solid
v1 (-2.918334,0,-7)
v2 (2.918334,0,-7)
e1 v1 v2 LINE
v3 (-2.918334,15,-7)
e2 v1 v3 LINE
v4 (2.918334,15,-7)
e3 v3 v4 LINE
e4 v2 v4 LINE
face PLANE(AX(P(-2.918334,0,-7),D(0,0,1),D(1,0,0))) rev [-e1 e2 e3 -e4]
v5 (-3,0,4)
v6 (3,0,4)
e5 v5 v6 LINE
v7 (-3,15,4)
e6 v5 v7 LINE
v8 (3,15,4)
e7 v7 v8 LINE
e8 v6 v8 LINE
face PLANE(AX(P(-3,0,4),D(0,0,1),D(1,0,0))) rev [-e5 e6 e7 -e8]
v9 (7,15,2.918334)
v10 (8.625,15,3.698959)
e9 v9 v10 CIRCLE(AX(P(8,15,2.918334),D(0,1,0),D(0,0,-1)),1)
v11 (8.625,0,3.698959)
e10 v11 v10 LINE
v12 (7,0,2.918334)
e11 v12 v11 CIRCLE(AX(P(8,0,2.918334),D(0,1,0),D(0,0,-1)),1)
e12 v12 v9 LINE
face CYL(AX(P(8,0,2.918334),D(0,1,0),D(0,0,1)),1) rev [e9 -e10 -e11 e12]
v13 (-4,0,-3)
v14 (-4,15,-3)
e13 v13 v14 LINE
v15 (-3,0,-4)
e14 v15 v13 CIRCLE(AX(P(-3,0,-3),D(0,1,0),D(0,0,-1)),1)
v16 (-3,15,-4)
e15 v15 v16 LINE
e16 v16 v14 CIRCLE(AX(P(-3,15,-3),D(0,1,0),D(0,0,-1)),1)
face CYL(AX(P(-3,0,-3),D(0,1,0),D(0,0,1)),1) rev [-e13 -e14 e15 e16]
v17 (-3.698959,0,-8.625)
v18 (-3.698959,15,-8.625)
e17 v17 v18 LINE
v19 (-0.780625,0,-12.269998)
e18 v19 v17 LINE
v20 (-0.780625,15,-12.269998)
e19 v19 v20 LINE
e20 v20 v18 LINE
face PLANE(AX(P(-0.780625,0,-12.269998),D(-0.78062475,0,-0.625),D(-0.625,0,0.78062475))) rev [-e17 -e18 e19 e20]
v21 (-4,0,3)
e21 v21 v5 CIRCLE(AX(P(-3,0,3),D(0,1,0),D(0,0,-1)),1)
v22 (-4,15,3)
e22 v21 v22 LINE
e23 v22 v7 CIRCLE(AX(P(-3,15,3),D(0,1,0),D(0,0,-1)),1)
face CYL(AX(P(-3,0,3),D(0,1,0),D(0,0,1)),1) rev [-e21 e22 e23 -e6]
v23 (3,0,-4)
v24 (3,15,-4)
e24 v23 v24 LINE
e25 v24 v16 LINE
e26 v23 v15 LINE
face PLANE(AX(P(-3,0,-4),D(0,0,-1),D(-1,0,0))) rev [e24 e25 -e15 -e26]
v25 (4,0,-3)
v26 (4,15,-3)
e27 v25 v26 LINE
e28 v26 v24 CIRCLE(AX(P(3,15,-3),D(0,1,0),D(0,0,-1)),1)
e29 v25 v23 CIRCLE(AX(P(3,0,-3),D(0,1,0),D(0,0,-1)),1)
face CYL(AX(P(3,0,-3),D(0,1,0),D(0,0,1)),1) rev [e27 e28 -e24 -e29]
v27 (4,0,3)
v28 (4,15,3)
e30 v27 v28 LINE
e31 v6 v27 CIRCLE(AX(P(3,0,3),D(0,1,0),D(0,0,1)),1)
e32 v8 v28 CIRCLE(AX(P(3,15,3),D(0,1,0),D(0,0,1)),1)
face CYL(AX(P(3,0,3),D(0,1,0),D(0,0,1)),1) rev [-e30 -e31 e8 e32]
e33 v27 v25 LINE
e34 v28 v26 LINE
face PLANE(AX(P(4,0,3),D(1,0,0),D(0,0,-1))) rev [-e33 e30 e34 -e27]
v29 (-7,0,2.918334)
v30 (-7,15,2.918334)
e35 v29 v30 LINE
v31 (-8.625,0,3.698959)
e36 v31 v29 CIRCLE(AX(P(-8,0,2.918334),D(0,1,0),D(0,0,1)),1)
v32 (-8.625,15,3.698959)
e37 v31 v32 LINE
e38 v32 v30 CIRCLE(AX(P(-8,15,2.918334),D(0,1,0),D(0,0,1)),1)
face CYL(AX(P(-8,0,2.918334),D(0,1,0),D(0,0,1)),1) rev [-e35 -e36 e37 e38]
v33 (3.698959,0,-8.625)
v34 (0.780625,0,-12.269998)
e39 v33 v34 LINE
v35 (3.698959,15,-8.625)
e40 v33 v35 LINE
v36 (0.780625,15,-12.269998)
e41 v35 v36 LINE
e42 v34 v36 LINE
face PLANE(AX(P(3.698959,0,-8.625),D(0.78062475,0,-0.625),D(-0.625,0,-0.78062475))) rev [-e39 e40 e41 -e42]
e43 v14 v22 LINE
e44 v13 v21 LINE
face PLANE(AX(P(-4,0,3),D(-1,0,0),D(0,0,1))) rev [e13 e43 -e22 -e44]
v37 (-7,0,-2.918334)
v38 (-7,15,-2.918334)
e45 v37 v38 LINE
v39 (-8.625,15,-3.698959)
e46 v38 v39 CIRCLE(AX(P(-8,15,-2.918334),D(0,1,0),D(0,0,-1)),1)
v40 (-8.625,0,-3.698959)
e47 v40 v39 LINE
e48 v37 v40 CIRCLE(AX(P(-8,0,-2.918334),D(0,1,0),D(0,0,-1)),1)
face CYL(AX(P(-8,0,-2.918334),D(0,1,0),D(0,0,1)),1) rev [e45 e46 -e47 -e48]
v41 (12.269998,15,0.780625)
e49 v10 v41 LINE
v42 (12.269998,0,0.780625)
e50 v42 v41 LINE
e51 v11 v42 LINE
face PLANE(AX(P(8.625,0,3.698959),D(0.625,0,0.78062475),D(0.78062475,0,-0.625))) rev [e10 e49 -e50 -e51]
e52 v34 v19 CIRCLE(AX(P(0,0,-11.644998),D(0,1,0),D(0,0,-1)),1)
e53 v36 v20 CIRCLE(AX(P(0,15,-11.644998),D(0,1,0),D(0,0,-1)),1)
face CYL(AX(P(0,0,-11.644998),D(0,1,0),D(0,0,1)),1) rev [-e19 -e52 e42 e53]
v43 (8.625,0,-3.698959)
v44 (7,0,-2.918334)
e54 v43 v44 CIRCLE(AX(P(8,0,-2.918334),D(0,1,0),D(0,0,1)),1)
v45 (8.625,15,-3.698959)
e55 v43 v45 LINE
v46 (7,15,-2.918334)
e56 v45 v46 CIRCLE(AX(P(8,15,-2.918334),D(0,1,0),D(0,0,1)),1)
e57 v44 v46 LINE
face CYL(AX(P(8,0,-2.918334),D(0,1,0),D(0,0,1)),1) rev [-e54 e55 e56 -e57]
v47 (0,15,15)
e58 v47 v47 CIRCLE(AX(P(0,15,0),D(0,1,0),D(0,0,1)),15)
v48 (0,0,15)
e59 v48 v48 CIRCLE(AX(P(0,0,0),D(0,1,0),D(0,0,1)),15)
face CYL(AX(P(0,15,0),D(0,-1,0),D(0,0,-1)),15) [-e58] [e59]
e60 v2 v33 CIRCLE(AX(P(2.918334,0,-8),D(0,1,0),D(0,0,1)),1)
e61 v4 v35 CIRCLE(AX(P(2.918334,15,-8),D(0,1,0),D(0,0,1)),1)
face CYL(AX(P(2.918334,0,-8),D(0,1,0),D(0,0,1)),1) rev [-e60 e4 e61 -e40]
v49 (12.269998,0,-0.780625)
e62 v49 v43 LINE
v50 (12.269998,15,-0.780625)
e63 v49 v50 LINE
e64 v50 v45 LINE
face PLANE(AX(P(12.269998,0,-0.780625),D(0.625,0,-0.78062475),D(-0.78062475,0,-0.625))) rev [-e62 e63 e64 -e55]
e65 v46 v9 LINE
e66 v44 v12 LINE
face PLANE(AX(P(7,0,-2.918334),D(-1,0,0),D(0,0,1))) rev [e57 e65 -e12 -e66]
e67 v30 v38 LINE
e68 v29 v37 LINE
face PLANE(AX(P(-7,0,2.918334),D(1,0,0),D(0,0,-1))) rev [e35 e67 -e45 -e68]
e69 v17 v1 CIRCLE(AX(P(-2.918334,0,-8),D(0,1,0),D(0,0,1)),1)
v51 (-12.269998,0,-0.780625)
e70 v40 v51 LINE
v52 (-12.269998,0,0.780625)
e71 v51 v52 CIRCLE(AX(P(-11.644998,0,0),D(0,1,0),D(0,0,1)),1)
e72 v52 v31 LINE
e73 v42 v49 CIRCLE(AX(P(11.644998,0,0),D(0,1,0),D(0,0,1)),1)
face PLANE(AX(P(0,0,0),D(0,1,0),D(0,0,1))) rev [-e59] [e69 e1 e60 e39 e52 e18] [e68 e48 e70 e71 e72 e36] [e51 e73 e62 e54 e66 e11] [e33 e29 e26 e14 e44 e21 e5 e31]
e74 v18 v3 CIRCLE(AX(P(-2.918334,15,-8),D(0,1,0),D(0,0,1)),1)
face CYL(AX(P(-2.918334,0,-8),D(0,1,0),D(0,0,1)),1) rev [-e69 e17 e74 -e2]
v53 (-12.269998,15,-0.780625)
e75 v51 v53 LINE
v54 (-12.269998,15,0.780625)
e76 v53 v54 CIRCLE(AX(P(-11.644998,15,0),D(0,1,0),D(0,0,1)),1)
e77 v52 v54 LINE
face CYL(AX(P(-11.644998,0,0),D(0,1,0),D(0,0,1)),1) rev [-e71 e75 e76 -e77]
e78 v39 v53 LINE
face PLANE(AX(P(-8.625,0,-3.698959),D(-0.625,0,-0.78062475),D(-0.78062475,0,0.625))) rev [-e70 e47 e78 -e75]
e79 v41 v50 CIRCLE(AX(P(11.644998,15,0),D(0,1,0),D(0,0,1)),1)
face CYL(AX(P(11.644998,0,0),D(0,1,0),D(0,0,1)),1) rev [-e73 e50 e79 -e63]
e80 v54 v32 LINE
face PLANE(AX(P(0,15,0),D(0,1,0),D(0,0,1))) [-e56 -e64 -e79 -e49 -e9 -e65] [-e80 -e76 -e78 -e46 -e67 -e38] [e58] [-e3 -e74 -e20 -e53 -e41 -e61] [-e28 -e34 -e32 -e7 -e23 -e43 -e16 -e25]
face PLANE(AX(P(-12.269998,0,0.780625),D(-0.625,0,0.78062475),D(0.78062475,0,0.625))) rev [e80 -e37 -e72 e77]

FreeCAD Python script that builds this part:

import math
import FreeCAD as App
import Part
import Sketcher
from FreeCAD import Vector
Q = App.Units.Quantity

doc = App.newDocument("Part")
body = doc.addObject("PartDesign::Body", "Body")

sketch1 = body.newObject("Sketcher::SketchObject", "Sketch")
sketch1.AttachmentSupport = (doc.getObject("XZ_Plane"), [""])
sketch1.MapMode = "FlatFace"
sketch1.addGeometry(Part.Circle(Vector(0, 0, 0), Vector(0, 0, 1), 15), False)
sketch1.addConstraint(Sketcher.Constraint("Coincident", 0, 3, -1, 1))
sketch1.addConstraint(Sketcher.Constraint("Diameter", 0, Q("30 mm")))
pad1 = body.newObject("PartDesign::Pad", "Pad")
pad1.Profile = sketch1
pad1.Length = 15
pad1.Reversed = True

sketch2 = body.newObject("Sketcher::SketchObject", "Sketch001")
sketch2.AttachmentSupport = (doc.getObject("XZ_Plane"), [""])
sketch2.MapMode = "FlatFace"
sketch2.AttachmentOffset = App.Placement(Vector(0, 0, -15), App.Rotation())
sketch2.addGeometry(Part.LineSegment(Vector(-0.8, -12.3, 0), Vector(-3.7, -8.6, 0)), False)
sketch2.addGeometry(Part.ArcOfCircle(Part.Circle(Vector(-2.9, -8, 0), Vector(0, 0, 1), 1), math.radians(90), math.radians(219)), False)
sketch2.addGeometry(Part.LineSegment(Vector(-2.9, -7, 0), Vector(2.9, -7, 0)), False)
sketch2.addGeometry(Part.ArcOfCircle(Part.Circle(Vector(2.9, -8, 0), Vector(0, 0, 1), 1), math.radians(-39), math.radians(90)), False)
sketch2.addGeometry(Part.LineSegment(Vector(3.7, -8.6, 0), Vector(0.8, -12.3, 0)), False)
sketch2.addGeometry(Part.ArcOfCircle(Part.Circle(Vector(0, -11.6, 0), Vector(0, 0, 1), 1), math.radians(-141), math.radians(-39)), False)
sketch2.addGeometry(Part.LineSegment(Vector(8.6, 3.7, 0), Vector(12.3, 0.8, 0)), False)
sketch2.addGeometry(Part.ArcOfCircle(Part.Circle(Vector(11.6, 0, 0), Vector(0, 0, 1), 1), math.radians(-51), math.radians(51)), False)
sketch2.addGeometry(Part.LineSegment(Vector(12.3, -0.8, 0), Vector(8.6, -3.7, 0)), False)
sketch2.addGeometry(Part.ArcOfCircle(Part.Circle(Vector(8, -2.9, 0), Vector(0, 0, 1), 1), math.radians(-180), math.radians(-51)), False)
sketch2.addGeometry(Part.LineSegment(Vector(7, -2.9, 0), Vector(7, 2.9, 0)), False)
sketch2.addGeometry(Part.ArcOfCircle(Part.Circle(Vector(8, 2.9, 0), Vector(0, 0, 1), 1), math.radians(51), math.radians(180)), False)
sketch2.addGeometry(Part.LineSegment(Vector(-3, 4, 0), Vector(3, 4, 0)), False)
sketch2.addGeometry(Part.ArcOfCircle(Part.Circle(Vector(3, 3, 0), Vector(0, 0, 1), 1), math.radians(0), math.radians(90)), False)
sketch2.addGeometry(Part.LineSegment(Vector(4, 3, 0), Vector(4, -3, 0)), False)
sketch2.addGeometry(Part.ArcOfCircle(Part.Circle(Vector(3, -3, 0), Vector(0, 0, 1), 1), math.radians(-90), math.radians(0)), False)
sketch2.addGeometry(Part.LineSegment(Vector(3, -4, 0), Vector(-3, -4, 0)), False)
sketch2.addGeometry(Part.ArcOfCircle(Part.Circle(Vector(-3, -3, 0), Vector(0, 0, 1), 1), math.radians(-180), math.radians(-90)), False)
sketch2.addGeometry(Part.LineSegment(Vector(-4, -3, 0), Vector(-4, 3, 0)), False)
sketch2.addGeometry(Part.ArcOfCircle(Part.Circle(Vector(-3, 3, 0), Vector(0, 0, 1), 1), math.radians(90), math.radians(180)), False)
sketch2.addGeometry(Part.LineSegment(Vector(-8.6, -3.7, 0), Vector(-12.3, -0.8, 0)), False)
sketch2.addGeometry(Part.ArcOfCircle(Part.Circle(Vector(-11.6, 0, 0), Vector(0, 0, 1), 1), math.radians(129), math.radians(231)), False)
sketch2.addGeometry(Part.LineSegment(Vector(-12.3, 0.8, 0), Vector(-8.6, 3.7, 0)), False)
sketch2.addGeometry(Part.ArcOfCircle(Part.Circle(Vector(-8, 2.9, 0), Vector(0, 0, 1), 1), math.radians(0), math.radians(129)), False)
sketch2.addGeometry(Part.LineSegment(Vector(-7, 2.9, 0), Vector(-7, -2.9, 0)), False)
sketch2.addGeometry(Part.ArcOfCircle(Part.Circle(Vector(-8, -2.9, 0), Vector(0, 0, 1), 1), math.radians(-129), math.radians(0)), False)
sketch2.addConstraint(Sketcher.Constraint("Tangent", 0, 2, 1, 2))
sketch2.addConstraint(Sketcher.Constraint("Tangent", 1, 1, 2, 1))
sketch2.addConstraint(Sketcher.Constraint("Tangent", 2, 2, 3, 2))
sketch2.addConstraint(Sketcher.Constraint("Tangent", 3, 1, 4, 1))
sketch2.addConstraint(Sketcher.Constraint("Tangent", 4, 2, 5, 2))
sketch2.addConstraint(Sketcher.Constraint("Tangent", 5, 1, 0, 1))
sketch2.addConstraint(Sketcher.Constraint("Tangent", 6, 2, 7, 2))
sketch2.addConstraint(Sketcher.Constraint("Tangent", 7, 1, 8, 1))
sketch2.addConstraint(Sketcher.Constraint("Tangent", 8, 2, 9, 2))
sketch2.addConstraint(Sketcher.Constraint("Tangent", 9, 1, 10, 1))
sketch2.addConstraint(Sketcher.Constraint("Tangent", 10, 2, 11, 2))
sketch2.addConstraint(Sketcher.Constraint("Tangent", 11, 1, 6, 1))
sketch2.addConstraint(Sketcher.Constraint("Tangent", 12, 2, 13, 2))
sketch2.addConstraint(Sketcher.Constraint("Tangent", 13, 1, 14, 1))
sketch2.addConstraint(Sketcher.Constraint("Tangent", 14, 2, 15, 2))
sketch2.addConstraint(Sketcher.Constraint("Tangent", 15, 1, 16, 1))
sketch2.addConstraint(Sketcher.Constraint("Tangent", 16, 2, 17, 2))
sketch2.addConstraint(Sketcher.Constraint("Tangent", 17, 1, 18, 1))
sketch2.addConstraint(Sketcher.Constraint("Tangent", 18, 2, 19, 2))
sketch2.addConstraint(Sketcher.Constraint("Tangent", 19, 1, 12, 1))
sketch2.addConstraint(Sketcher.Constraint("Tangent", 20, 2, 21, 2))
sketch2.addConstraint(Sketcher.Constraint("Tangent", 21, 1, 22, 1))
sketch2.addConstraint(Sketcher.Constraint("Tangent", 22, 2, 23, 2))
sketch2.addConstraint(Sketcher.Constraint("Tangent", 23, 1, 24, 1))
sketch2.addConstraint(Sketcher.Constraint("Tangent", 24, 2, 25, 2))
sketch2.addConstraint(Sketcher.Constraint("Tangent", 25, 1, 20, 1))
sketch2.addConstraint(Sketcher.Constraint("Horizontal", 2))
sketch2.addConstraint(Sketcher.Constraint("Vertical", 10))
sketch2.addConstraint(Sketcher.Constraint("Horizontal", 12))
sketch2.addConstraint(Sketcher.Constraint("Vertical", 14))
sketch2.addConstraint(Sketcher.Constraint("Horizontal", 16))
sketch2.addConstraint(Sketcher.Constraint("Vertical", 18))
sketch2.addConstraint(Sketcher.Constraint("Vertical", 24))
sketch2.addConstraint(Sketcher.Constraint("Equal", 1, 3))
sketch2.addConstraint(Sketcher.Constraint("Equal", 3, 5))
sketch2.addConstraint(Sketcher.Constraint("Equal", 5, 7))
sketch2.addConstraint(Sketcher.Constraint("Equal", 7, 9))
sketch2.addConstraint(Sketcher.Constraint("Equal", 9, 11))
sketch2.addConstraint(Sketcher.Constraint("Equal", 11, 13))
sketch2.addConstraint(Sketcher.Constraint("Equal", 13, 15))
sketch2.addConstraint(Sketcher.Constraint("Equal", 15, 17))
sketch2.addConstraint(Sketcher.Constraint("Equal", 17, 19))
sketch2.addConstraint(Sketcher.Constraint("Equal", 19, 21))
sketch2.addConstraint(Sketcher.Constraint("Equal", 21, 23))
sketch2.addConstraint(Sketcher.Constraint("Equal", 23, 25))
sketch2.addConstraint(Sketcher.Constraint("Symmetric", 13, 3, 17, 3, -1, 1))
sketch2.addConstraint(Sketcher.Constraint("Symmetric", 7, 3, 21, 3, -1, 1))
sketch2.addConstraint(Sketcher.Constraint("Symmetric", 9, 3, 23, 3, -1, 1))
sketch2.addConstraint(Sketcher.Constraint("Symmetric", 0, 2, 3, 1, -2))
sketch2.addConstraint(Sketcher.Constraint("Symmetric", 7, 1, 20, 2, -2))
sketch2.addConstraint(Sketcher.Constraint("Perpendicular", 4, 6))
sketch2.addConstraint(Sketcher.Constraint("Perpendicular", 0, 8))
sketch2.addConstraint(Sketcher.Constraint("Equal", 2, 10))
sketch2.addConstraint(Sketcher.Constraint("Equal", 16, 14))
sketch2.addConstraint(Sketcher.Constraint("Radius", 1, Q("1 mm")))
sketch2.addConstraint(Sketcher.Constraint("DistanceX", 12, 1, 12, 2, Q("6 mm")))
sketch2.addConstraint(Sketcher.Constraint("DistanceY", 1, 3, -1, 1, Q("8 mm")))
sketch2.addConstraint(Sketcher.Constraint("DistanceX", -1, 1, 9, 3, Q("8 mm")))
sketch2.addConstraint(Sketcher.Constraint("DistanceY", 0, 2, -1, 1, Q("8.625 mm")))
sketch2.addConstraint(Sketcher.Constraint("DistanceX", 2, 1, 2, 2, Q("5.836668 mm")))
pocket1 = body.newObject("PartDesign::Pocket", "Pocket")
pocket1.Profile = sketch2
pocket1.Length = 15
pocket1.Reversed = True

doc.recompute()
